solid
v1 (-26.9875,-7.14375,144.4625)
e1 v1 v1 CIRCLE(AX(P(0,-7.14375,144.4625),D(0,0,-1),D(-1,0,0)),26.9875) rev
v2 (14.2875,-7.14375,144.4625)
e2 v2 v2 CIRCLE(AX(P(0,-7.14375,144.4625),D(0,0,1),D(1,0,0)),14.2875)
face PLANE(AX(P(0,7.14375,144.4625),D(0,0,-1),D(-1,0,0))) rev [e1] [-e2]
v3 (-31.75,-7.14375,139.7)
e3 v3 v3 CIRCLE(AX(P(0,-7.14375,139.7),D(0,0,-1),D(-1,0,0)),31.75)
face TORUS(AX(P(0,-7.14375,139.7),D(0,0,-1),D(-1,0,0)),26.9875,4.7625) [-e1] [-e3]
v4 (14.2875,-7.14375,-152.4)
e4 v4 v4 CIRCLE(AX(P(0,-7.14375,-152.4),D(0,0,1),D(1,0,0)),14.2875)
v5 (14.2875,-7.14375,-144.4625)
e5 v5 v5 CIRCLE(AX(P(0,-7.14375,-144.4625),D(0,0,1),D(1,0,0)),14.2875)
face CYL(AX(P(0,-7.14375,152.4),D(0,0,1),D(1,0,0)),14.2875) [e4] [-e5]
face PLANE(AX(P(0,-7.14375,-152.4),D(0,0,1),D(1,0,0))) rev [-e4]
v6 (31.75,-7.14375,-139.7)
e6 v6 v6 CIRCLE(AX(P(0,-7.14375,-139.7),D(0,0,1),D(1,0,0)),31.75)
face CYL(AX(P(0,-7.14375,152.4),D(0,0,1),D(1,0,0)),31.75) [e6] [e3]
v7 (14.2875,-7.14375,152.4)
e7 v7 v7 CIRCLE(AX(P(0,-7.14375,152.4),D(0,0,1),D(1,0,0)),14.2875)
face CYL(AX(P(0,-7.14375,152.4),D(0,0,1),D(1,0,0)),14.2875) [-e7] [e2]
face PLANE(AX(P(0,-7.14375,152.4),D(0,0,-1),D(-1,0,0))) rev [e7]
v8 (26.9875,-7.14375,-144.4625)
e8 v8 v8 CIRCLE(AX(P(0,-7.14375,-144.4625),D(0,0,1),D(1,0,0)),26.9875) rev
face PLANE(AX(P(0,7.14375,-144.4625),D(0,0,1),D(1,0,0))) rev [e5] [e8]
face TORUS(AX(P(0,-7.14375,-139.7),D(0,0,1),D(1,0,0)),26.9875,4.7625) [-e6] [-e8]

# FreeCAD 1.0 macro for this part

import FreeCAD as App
import Part
import Sketcher
Q = App.Units.Quantity


def edges_at(feature, points):
    """Names of the edges that pass closest to the given points."""
    edges = feature.Shape.Edges
    near = lambda p: min(range(len(edges)), key=lambda i: edges[i].distToShape(Part.Vertex(*p))[0])
    return sorted({f"Edge{near(p) + 1}" for p in points})


def add_polygon(sketch, points):
    """Adds a closed chain of lines whose ends are joined by coincident constraints."""
    first, n = sketch.GeometryCount, len(points)
    for a, b in zip(points, points[1:] + points[:1]):
        sketch.addGeometry(Part.LineSegment(App.Vector(*a, 0), App.Vector(*b, 0)), False)
    for i in range(n):
        sketch.addConstraint(Sketcher.Constraint("Coincident", first + i, 2, first + (i + 1) % n, 1))

doc = App.newDocument("Part")
body = doc.addObject("PartDesign::Body", "Body")

# Sketch on YZ plane
sketch1 = body.newObject("Sketcher::SketchObject", "Sketch")
sketch1.AttachmentSupport = (doc.getObject("YZ_Plane"), [""])
sketch1.MapMode = "FlatFace"
add_polygon(sketch1, [(-7, 152), (-7, -152), (7, -152), (7, -144), (25, -144), (25, 144), (7, 144), (7, 152)])  # lines 0-7
sketch1.addGeometry(Part.LineSegment(App.Vector(-7, 152, 0), App.Vector(-7, -152, 0)), True)  # axis
sketch1.addConstraint(Sketcher.Constraint("Vertical", 0))
sketch1.addConstraint(Sketcher.Constraint("Horizontal", 1))
sketch1.addConstraint(Sketcher.Constraint("Vertical", 2))
sketch1.addConstraint(Sketcher.Constraint("Horizontal", 3))
sketch1.addConstraint(Sketcher.Constraint("Vertical", 4))
sketch1.addConstraint(Sketcher.Constraint("Horizontal", 5))
sketch1.addConstraint(Sketcher.Constraint("Vertical", 6))
sketch1.addConstraint(Sketcher.Constraint("Horizontal", 7))
sketch1.addConstraint(Sketcher.Constraint("Vertical", 8))
sketch1.addConstraint(Sketcher.Constraint("Coincident", 8, 1, 7, 2))
sketch1.addConstraint(Sketcher.Constraint("Symmetric", 0, 2, 6, 2, -1, 1))
sketch1.addConstraint(Sketcher.Constraint("Symmetric", 1, 2, 8, 2, -2))
sketch1.addConstraint(Sketcher.Constraint("Equal", 2, 6))
sketch1.addConstraint(Sketcher.Constraint("DistanceY", 0, 2, 0, 1, Q("12 in")))
sketch1.addConstraint(Sketcher.Constraint("DistanceX", 1, 1, 1, 2, Q("0.5625 in")))
sketch1.addConstraint(Sketcher.Constraint("DistanceX", 3, 1, 3, 2, Q("0.6875 in")))
sketch1.addConstraint(Sketcher.Constraint("DistanceY", 2, 1, 2, 2, Q("0.3125 in")))
revolution = body.newObject("PartDesign::Revolution", "Revolution")
revolution.Profile = sketch1
revolution.ReferenceAxis = (sketch1, ["Axis0"])
revolution.Angle = 360
doc.recompute()

fillet = body.newObject("PartDesign::Fillet", "Fillet")
fillet.Base = (revolution, edges_at(revolution, [(0, -38.894, -144.463), (0, -38.894, 144.463)]))
fillet.Radius = Q("0.1875 in")

doc.recompute()
